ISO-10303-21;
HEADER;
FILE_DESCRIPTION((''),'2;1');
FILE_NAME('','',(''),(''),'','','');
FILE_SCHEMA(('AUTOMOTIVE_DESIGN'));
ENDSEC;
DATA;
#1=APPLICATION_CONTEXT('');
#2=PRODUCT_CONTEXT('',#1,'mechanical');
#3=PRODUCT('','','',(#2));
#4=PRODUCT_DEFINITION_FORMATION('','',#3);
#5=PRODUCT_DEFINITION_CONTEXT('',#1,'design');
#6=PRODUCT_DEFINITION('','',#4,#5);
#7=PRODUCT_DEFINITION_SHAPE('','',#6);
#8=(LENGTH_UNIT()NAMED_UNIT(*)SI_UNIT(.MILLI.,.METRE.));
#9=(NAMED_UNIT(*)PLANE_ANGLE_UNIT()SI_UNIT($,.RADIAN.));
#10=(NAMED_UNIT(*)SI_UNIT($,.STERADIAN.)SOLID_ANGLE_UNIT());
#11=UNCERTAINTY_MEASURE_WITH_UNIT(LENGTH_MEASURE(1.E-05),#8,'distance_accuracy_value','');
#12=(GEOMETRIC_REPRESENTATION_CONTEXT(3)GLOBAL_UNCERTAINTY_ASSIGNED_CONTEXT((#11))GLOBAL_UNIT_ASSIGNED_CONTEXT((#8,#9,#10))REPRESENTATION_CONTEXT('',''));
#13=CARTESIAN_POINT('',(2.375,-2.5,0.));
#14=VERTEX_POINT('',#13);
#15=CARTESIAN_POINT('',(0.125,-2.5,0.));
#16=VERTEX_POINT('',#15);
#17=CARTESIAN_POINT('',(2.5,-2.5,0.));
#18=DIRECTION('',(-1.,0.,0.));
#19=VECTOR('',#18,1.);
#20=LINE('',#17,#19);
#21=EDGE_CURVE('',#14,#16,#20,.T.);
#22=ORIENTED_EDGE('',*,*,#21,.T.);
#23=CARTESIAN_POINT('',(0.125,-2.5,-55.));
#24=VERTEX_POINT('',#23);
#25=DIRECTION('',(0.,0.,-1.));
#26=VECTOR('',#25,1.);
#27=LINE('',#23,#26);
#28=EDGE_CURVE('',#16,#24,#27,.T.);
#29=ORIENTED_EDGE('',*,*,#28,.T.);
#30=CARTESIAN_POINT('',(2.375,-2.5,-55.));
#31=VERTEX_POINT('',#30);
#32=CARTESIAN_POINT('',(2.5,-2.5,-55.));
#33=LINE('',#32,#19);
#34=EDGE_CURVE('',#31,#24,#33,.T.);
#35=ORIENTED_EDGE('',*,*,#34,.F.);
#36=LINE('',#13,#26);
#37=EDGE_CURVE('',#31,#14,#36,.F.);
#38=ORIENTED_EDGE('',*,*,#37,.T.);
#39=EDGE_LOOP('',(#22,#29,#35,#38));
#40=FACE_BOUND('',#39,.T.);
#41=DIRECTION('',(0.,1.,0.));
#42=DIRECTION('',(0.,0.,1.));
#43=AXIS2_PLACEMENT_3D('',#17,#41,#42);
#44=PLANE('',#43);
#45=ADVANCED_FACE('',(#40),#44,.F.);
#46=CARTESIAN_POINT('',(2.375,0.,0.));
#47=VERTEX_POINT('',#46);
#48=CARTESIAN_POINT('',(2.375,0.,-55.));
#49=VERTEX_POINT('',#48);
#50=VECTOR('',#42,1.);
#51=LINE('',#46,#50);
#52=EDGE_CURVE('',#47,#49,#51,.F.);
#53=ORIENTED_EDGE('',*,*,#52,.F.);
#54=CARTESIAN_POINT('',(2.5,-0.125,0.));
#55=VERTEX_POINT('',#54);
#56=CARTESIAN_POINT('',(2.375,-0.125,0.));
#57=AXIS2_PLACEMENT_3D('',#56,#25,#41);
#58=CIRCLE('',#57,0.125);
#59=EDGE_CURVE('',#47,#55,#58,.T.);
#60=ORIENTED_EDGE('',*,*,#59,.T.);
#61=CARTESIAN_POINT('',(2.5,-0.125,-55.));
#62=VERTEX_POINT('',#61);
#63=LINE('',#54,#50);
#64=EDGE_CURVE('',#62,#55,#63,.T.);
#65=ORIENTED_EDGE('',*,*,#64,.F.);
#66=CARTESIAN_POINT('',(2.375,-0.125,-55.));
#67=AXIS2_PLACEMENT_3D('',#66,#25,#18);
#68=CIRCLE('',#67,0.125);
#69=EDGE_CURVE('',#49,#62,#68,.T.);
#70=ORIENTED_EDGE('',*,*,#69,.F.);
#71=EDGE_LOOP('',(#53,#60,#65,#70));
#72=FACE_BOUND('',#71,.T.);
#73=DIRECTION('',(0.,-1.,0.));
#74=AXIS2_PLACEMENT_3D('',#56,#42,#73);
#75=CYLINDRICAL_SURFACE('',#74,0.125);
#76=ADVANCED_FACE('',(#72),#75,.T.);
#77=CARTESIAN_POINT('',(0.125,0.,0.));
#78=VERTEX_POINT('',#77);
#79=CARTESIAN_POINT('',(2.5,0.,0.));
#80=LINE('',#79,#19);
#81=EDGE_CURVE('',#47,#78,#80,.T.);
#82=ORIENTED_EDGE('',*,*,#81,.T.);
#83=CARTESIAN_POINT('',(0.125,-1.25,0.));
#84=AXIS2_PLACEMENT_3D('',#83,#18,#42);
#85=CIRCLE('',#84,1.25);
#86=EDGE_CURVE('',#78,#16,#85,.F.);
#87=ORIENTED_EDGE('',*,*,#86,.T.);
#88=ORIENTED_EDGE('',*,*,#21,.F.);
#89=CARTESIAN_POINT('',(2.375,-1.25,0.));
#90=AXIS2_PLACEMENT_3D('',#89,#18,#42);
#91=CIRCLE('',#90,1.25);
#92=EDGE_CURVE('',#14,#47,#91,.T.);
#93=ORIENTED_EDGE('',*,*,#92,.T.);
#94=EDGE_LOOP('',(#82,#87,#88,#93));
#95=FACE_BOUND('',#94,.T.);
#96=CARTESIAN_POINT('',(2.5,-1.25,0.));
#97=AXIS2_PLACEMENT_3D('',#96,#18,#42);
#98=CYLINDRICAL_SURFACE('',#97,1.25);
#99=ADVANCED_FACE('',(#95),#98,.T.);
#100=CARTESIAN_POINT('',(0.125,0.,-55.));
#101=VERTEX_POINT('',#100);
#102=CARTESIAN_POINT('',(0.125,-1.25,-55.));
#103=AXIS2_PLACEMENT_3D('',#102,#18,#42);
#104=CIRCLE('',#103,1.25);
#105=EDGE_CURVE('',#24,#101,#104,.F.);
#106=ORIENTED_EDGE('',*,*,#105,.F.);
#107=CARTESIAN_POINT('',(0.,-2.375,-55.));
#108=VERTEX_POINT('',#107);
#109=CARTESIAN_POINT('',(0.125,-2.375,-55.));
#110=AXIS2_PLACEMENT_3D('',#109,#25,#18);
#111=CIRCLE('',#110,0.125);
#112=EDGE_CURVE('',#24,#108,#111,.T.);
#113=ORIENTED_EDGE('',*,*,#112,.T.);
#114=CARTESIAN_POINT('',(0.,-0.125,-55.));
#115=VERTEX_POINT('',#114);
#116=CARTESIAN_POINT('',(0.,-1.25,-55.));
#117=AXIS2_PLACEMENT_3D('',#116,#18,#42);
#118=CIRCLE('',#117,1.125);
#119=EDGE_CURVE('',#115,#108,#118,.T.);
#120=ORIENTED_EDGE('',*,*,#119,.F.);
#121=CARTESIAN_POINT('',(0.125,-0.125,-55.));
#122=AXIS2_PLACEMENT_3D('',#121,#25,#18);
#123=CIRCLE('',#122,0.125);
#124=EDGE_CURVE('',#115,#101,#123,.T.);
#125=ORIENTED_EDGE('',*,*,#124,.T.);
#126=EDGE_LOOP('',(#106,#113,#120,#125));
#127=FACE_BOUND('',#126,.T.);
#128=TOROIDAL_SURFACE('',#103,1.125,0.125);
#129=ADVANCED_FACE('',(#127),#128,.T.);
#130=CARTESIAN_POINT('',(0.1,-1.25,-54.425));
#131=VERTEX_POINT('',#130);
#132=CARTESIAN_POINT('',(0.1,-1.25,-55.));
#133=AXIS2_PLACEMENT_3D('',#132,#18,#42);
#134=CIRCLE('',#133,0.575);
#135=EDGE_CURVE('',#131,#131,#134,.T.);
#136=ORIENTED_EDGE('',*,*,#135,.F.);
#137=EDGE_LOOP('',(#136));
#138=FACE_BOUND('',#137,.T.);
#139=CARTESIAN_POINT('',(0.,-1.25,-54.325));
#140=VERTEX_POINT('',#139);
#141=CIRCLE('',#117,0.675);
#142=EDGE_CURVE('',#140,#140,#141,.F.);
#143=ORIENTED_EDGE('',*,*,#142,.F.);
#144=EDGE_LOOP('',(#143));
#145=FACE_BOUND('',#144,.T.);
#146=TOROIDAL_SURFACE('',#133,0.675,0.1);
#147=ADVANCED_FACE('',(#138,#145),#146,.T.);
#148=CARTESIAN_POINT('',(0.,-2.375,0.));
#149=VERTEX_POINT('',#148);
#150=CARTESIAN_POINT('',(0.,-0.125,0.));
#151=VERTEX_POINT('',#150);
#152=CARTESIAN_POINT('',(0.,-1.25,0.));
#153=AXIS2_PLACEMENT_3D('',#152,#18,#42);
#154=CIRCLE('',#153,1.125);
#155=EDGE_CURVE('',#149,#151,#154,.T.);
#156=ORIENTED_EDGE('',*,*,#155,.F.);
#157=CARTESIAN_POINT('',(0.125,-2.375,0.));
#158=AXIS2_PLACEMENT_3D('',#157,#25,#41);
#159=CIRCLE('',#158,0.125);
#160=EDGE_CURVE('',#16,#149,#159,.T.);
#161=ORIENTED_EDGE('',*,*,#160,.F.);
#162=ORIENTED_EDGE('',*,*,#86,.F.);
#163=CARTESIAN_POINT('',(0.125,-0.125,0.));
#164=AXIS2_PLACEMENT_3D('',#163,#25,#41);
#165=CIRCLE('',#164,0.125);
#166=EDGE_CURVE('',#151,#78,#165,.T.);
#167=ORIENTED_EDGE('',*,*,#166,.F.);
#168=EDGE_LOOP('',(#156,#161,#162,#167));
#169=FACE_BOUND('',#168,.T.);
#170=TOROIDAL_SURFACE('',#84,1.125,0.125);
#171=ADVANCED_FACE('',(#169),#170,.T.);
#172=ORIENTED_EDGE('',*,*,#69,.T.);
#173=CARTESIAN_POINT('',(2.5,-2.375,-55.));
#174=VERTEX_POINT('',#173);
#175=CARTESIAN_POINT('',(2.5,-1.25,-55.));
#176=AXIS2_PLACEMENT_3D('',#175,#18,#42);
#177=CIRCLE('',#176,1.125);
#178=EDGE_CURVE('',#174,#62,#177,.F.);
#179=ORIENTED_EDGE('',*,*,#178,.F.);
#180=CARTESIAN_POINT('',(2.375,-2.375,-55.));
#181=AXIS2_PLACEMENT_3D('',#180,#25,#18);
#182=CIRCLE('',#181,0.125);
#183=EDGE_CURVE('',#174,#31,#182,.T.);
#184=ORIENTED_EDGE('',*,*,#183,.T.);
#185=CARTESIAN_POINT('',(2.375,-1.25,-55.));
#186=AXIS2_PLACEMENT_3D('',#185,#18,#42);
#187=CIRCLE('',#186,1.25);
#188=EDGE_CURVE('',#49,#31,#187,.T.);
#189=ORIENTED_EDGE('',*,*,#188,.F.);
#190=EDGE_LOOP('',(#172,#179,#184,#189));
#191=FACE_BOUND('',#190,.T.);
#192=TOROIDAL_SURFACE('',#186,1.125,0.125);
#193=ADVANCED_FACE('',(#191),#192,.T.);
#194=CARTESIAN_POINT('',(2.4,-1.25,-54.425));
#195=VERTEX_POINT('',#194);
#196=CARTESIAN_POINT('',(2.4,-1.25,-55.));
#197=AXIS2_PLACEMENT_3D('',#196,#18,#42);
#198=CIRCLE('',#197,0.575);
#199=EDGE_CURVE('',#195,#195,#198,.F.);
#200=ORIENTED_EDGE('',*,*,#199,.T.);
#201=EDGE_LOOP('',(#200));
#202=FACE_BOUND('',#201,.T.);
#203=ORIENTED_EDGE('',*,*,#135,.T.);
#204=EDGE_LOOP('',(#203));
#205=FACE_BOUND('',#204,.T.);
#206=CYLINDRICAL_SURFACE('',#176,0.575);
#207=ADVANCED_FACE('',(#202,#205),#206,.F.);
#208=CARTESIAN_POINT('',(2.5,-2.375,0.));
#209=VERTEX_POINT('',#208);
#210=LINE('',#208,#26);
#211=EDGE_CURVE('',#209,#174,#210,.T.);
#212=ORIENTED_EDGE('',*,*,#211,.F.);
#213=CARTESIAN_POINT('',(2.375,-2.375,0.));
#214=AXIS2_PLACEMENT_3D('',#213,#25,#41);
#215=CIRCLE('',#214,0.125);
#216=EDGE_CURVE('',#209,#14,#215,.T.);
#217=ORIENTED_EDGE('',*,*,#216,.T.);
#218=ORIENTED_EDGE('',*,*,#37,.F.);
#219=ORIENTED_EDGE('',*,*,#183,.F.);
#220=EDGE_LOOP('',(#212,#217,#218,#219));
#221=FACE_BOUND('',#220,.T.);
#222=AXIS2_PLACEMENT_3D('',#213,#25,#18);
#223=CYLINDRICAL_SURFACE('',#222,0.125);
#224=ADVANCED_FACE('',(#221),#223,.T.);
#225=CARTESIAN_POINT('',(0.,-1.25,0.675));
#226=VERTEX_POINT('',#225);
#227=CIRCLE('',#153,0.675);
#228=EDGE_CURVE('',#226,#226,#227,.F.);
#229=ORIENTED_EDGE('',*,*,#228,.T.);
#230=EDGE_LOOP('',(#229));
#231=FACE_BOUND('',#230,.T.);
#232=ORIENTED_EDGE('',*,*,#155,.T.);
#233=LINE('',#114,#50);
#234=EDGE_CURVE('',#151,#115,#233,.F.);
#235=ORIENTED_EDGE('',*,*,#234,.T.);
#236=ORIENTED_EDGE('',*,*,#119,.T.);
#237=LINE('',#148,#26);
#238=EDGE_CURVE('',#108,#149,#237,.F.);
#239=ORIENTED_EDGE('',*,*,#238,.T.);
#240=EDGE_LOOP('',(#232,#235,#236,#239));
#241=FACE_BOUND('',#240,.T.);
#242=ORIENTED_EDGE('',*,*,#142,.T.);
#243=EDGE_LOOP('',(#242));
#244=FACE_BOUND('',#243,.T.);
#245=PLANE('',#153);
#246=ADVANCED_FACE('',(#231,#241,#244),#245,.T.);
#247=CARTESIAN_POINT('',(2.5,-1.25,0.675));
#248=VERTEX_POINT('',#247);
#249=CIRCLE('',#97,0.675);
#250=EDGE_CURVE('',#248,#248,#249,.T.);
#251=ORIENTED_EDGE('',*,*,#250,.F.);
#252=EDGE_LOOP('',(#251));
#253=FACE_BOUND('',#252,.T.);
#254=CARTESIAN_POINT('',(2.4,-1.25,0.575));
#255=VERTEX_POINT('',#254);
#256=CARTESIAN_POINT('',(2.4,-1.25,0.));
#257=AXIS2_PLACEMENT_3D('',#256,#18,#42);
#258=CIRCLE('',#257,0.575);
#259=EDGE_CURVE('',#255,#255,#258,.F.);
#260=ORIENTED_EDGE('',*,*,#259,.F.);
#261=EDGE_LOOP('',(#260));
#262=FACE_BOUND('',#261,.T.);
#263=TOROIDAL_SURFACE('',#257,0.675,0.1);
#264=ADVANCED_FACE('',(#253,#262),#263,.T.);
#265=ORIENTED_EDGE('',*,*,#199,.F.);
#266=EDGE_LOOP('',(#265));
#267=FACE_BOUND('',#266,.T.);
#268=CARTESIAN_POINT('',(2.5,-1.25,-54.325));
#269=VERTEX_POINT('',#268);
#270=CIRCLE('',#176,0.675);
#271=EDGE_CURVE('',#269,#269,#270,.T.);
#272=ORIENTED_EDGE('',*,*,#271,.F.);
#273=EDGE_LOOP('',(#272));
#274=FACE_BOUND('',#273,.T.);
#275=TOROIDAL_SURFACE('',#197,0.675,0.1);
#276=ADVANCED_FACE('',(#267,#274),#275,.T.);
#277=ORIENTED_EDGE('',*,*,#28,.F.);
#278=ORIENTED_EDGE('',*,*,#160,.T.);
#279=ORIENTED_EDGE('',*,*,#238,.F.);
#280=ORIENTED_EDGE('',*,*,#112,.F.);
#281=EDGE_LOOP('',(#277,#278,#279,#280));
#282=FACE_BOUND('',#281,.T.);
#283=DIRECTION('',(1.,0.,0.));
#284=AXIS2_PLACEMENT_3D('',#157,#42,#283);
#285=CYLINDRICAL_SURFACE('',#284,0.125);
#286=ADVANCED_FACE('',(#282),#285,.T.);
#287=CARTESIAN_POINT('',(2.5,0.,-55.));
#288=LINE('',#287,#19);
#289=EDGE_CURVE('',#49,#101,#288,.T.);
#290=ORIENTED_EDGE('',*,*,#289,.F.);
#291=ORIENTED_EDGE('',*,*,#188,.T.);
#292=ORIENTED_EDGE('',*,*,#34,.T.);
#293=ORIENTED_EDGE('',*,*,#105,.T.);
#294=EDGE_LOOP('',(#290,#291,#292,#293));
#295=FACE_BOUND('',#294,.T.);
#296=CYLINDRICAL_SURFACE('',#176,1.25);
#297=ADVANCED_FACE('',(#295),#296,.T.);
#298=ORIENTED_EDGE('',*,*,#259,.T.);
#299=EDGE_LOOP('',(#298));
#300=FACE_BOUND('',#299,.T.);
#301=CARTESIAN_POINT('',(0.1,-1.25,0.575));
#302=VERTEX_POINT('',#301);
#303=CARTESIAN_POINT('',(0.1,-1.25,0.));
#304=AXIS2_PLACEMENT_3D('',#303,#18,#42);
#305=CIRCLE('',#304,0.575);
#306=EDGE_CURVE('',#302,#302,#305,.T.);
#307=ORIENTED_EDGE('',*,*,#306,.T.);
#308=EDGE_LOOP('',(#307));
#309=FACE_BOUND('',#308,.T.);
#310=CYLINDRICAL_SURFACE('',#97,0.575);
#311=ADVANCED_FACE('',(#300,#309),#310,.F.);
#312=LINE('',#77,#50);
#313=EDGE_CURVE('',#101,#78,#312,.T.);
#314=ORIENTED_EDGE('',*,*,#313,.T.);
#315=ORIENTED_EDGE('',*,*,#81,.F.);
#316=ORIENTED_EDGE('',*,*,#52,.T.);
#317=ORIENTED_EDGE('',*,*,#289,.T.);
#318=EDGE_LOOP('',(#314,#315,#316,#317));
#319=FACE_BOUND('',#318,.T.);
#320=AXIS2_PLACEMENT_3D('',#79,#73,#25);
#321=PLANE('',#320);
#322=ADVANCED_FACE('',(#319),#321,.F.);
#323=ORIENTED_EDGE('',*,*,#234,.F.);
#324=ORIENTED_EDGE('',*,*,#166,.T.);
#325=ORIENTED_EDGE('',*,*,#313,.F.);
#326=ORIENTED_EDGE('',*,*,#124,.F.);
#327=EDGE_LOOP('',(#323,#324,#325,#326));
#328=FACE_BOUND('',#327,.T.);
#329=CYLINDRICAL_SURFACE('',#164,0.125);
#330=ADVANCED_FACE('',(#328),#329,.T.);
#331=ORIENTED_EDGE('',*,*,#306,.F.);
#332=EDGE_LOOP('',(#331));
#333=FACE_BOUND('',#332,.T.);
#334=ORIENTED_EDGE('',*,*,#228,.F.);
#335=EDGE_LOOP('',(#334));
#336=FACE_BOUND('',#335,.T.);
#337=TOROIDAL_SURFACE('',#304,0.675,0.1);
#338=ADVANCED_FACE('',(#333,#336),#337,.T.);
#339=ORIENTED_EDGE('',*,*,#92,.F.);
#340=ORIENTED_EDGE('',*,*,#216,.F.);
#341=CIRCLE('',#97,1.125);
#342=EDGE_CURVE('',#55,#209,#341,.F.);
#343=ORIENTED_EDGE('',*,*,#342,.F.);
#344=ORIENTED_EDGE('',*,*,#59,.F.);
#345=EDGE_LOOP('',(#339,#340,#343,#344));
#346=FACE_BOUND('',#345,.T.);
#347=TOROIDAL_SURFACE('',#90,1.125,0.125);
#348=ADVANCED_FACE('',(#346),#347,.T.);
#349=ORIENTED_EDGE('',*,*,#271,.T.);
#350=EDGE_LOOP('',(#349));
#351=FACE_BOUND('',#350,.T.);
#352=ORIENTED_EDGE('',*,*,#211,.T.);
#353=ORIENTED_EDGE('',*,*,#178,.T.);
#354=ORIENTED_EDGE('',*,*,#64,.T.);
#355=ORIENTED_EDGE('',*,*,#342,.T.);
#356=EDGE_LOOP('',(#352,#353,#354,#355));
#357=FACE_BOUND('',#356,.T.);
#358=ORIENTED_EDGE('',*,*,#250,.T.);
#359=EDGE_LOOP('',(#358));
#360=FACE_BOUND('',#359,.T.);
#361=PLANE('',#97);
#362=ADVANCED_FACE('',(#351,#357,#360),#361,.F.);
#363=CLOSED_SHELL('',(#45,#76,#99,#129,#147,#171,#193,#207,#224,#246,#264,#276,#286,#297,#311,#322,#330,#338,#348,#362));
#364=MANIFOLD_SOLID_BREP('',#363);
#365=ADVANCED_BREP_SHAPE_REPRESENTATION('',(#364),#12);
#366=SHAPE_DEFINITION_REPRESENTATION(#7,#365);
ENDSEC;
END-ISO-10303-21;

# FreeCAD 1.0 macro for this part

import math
import FreeCAD as App
import Part
import Sketcher


def edges_at(feature, points):
    """Names of the edges that pass closest to the given points."""
    edges = feature.Shape.Edges
    near = lambda p: min(range(len(edges)), key=lambda i: edges[i].distToShape(Part.Vertex(*p))[0])
    return sorted({f"Edge{near(p) + 1}" for p in points})

doc = App.newDocument("Part")
params = doc.addObject("Spreadsheet::Sheet", "Params")
for row, (alias, value) in enumerate([
    ("sketch1_diameter", "1.15 mm"),
    ("sketch1_height", "55 mm"),
    ("sketch1_radius", "1.25 mm"),
    ("pad1_length", "2.5 mm"),
    ("fillet_radius", "0.125 mm"),
    ("fillet2_radius", "0.1 mm"),
], start=1):
    params.set(f"A{row}", alias)
    params.set(f"B{row}", "=" + value)
    params.setAlias(f"B{row}", alias)

body = doc.addObject("PartDesign::Body", "Body")

sketch1 = body.newObject("Sketcher::SketchObject", "Sketch")
sketch1.AttachmentSupport = (doc.getObject("YZ_Plane"), [""])
sketch1.MapMode = "FlatFace"
sketch1.addGeometry([
    Part.LineSegment(App.Vector(0, -55, 0), App.Vector(0, 0, 0)),
    Part.ArcOfCircle(Part.Circle(App.Vector(-1.25, 0, 0), App.Vector(0, 0, 1), 1.25), math.radians(0), math.radians(180)),
    Part.LineSegment(App.Vector(-2.5, 0, 0), App.Vector(-2.5, -55, 0)),
    Part.ArcOfCircle(Part.Circle(App.Vector(-1.25, -55, 0), App.Vector(0, 0, 1), 1.25), math.radians(180), math.radians(360)),
    Part.Circle(App.Vector(-1.25, -55, 0), App.Vector(0, 0, 1), 0.575),
    Part.Circle(App.Vector(-1.25, 0, 0), App.Vector(0, 0, 1), 0.575),
], False)
sketch1.addConstraint([
    Sketcher.Constraint("Tangent", 0, 2, 1, 1),
    Sketcher.Constraint("Tangent", 1, 2, 2, 1),
    Sketcher.Constraint("Tangent", 2, 2, 3, 1),
    Sketcher.Constraint("Tangent", 3, 2, 0, 1),
    Sketcher.Constraint("Vertical", 0),
    Sketcher.Constraint("Vertical", 2),
    Sketcher.Constraint("Coincident", 0, 2, -1, 1),
    Sketcher.Constraint("Coincident", 4, 3, 3, 3),
    Sketcher.Constraint("Coincident", 5, 3, 1, 3),
    Sketcher.Constraint("Equal", 4, 5),
    Sketcher.Constraint("Diameter", 4, 1.15),
    Sketcher.Constraint("DistanceY", 0, 1, 0, 2, 55.0),
    Sketcher.Constraint("Radius", 1, 1.25),
])
sketch1.setExpression("Constraints[10]", "Params.sketch1_diameter")
sketch1.setExpression("Constraints[11]", "Params.sketch1_height")
sketch1.setExpression("Constraints[12]", "Params.sketch1_radius")
pad1 = body.newObject("PartDesign::Pad", "Pad")
pad1.Profile = sketch1
pad1.setExpression("Length", "Params.pad1_length")
doc.recompute()

fillet = body.newObject("PartDesign::Fillet", "Fillet")
fillet.Base = (pad1, edges_at(pad1, [
    (2.5, -1.25, -56.25),
    (2.5, 0, -27.5),
    (2.5, -1.25, 1.25),
    (0, 0, -27.5),
    (0, -1.25, -56.25),
    (0, -2.5, -27.5),
    (0, -1.25, 1.25),
    (2.5, -2.5, -27.5),
]))
fillet.setExpression("Radius", "Params.fillet_radius")
doc.recompute()

fillet2 = body.newObject("PartDesign::Fillet", "Fillet001")
fillet2.Base = (fillet, edges_at(fillet, [
    (0, -1.25, 0.575),
    (2.5, -1.25, 0.575),
    (0, -1.25, -54.425),
    (2.5, -1.25, -54.425),
]))
fillet2.setExpression("Radius", "Params.fillet2_radius")

doc.recompute()
